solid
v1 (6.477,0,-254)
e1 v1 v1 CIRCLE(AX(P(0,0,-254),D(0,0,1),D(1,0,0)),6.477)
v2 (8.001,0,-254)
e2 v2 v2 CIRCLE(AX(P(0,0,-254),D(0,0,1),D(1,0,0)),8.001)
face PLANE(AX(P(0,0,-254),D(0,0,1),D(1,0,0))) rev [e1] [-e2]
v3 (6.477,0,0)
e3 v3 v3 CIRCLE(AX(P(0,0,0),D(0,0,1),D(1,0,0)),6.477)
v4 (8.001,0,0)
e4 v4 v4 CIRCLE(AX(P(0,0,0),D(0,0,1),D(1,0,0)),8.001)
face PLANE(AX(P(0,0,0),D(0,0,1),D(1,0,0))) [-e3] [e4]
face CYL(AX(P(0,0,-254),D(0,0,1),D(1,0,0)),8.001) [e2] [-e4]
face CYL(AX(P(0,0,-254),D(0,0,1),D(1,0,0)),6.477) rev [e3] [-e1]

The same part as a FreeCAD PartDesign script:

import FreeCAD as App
import Part
import Sketcher
Q = App.Units.Quantity

doc = App.newDocument("Part")
body = doc.addObject("PartDesign::Body", "Body")

# Sketch on XY plane
sketch1 = body.newObject("Sketcher::SketchObject", "Sketch")
sketch1.AttachmentSupport = (doc.getObject("XY_Plane"), [""])
sketch1.MapMode = "FlatFace"
sketch1.addGeometry([
    Part.Circle(App.Vector(0, 0, 0), App.Vector(0, 0, 1), 8),
    Part.Circle(App.Vector(0, 0, 0), App.Vector(0, 0, 1), 6),
], False)
sketch1.addConstraint([
    Sketcher.Constraint("Coincident", 0, 3, -1, 1),
    Sketcher.Constraint("Coincident", 1, 3, -1, 1),
    Sketcher.Constraint("Diameter", 0, Q("0.63 in")),
    Sketcher.Constraint("Diameter", 1, Q("0.51 in")),
])
pad1 = body.newObject("PartDesign::Pad", "Pad")
pad1.Profile = sketch1
pad1.Length = Q("10 in")
pad1.Reversed = True

doc.recompute()
